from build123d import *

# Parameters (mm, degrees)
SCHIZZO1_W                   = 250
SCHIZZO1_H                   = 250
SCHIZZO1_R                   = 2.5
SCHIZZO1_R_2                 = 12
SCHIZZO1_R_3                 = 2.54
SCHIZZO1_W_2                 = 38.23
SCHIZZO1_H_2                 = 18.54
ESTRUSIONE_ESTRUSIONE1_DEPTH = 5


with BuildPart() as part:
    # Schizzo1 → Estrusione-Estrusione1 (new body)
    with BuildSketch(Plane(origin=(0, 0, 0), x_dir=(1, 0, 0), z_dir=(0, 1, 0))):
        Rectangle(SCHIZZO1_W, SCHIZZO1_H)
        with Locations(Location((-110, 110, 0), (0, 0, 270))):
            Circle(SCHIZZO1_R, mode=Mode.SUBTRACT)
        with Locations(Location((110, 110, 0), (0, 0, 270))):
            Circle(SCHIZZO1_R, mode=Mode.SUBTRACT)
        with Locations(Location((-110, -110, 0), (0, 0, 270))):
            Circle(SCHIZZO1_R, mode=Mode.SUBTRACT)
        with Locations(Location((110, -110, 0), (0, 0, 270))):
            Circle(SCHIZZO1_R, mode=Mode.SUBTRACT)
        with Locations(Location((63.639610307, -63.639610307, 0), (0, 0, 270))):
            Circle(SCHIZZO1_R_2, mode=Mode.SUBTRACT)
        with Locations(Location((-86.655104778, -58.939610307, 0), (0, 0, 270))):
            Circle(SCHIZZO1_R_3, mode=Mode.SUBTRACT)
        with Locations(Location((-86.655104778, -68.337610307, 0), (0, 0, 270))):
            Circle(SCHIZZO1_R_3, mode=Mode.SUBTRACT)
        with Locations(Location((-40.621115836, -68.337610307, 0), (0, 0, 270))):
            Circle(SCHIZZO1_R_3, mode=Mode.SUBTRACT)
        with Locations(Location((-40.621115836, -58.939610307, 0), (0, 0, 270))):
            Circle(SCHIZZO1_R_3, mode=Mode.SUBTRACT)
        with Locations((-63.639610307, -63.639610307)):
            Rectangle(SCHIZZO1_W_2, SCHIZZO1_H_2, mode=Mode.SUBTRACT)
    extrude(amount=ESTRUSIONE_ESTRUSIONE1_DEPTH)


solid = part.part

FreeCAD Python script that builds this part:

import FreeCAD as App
import Part
import Sketcher
from FreeCAD import Vector


def add_polygon(sketch, points):
    """Adds a closed chain of lines whose ends are joined by coincident constraints."""
    first, n = sketch.GeometryCount, len(points)
    for a, b in zip(points, points[1:] + points[:1]):
        sketch.addGeometry(Part.LineSegment(App.Vector(*a, 0), App.Vector(*b, 0)), False)
    for i in range(n):
        sketch.addConstraint(Sketcher.Constraint("Coincident", first + i, 2, first + (i + 1) % n, 1))

doc = App.newDocument("Part")
body = doc.addObject("PartDesign::Body", "Body")

# Sketch on XZ plane
sketch1 = body.newObject("Sketcher::SketchObject", "Sketch")
sketch1.AttachmentSupport = (doc.getObject("XZ_Plane"), [""])
sketch1.MapMode = "FlatFace"
add_polygon(sketch1, [(-125, -125), (-125, 125), (125, 125), (125, -125)])  # lines 0-3
sketch1.addGeometry(Part.Circle(Vector(-110, 110, 0), Vector(0, 0, 1), 2.5), False)  # 4
sketch1.addGeometry(Part.Circle(Vector(-86.7, 68.3, 0), Vector(0, 0, 1), 2.5), False)  # 5
sketch1.addGeometry(Part.Circle(Vector(-86.7, 58.9, 0), Vector(0, 0, 1), 2.5), False)  # 6
add_polygon(sketch1, [(-44.5, 72.9), (-82.8, 72.9), (-82.8, 54.4), (-44.5, 54.4)])  # lines 7-10
sketch1.addGeometry(Part.Circle(Vector(-40.6, 68.3, 0), Vector(0, 0, 1), 2.5), False)  # 11
sketch1.addGeometry(Part.Circle(Vector(-40.6, 58.9, 0), Vector(0, 0, 1), 2.5), False)  # 12
sketch1.addGeometry(Part.Circle(Vector(110, 110, 0), Vector(0, 0, 1), 2.5), False)  # 13
sketch1.addGeometry(Part.Circle(Vector(63.6, 63.6, 0), Vector(0, 0, 1), 12), False)  # 14
sketch1.addGeometry(Part.Circle(Vector(-110, -110, 0), Vector(0, 0, 1), 2.5), False)  # 15
sketch1.addGeometry(Part.Circle(Vector(110, -110, 0), Vector(0, 0, 1), 2.5), False)  # 16
sketch1.addConstraint([
    Sketcher.Constraint("Vertical", 0),
    Sketcher.Constraint("Horizontal", 1),
    Sketcher.Constraint("Vertical", 2),
    Sketcher.Constraint("Horizontal", 3),
    Sketcher.Constraint("Horizontal", 7),
    Sketcher.Constraint("Vertical", 8),
    Sketcher.Constraint("Horizontal", 9),
    Sketcher.Constraint("Vertical", 10),
    Sketcher.Constraint("Equal", 5, 6),
    Sketcher.Constraint("Equal", 6, 11),
    Sketcher.Constraint("Equal", 11, 12),
    Sketcher.Constraint("Equal", 4, 13),
    Sketcher.Constraint("Equal", 13, 15),
    Sketcher.Constraint("Equal", 15, 16),
    Sketcher.Constraint("Symmetric", 13, 3, 15, 3, -1, 1),
    Sketcher.Constraint("Symmetric", 4, 3, 16, 3, -1, 1),
    Sketcher.Constraint("Symmetric", 0, 2, 2, 2, -1, 1),
    Sketcher.Constraint("Symmetric", 4, 3, 13, 3, -2),
    Sketcher.Constraint("Horizontal", 5, 3, 11, 3),
    Sketcher.Constraint("Horizontal", 6, 3, 12, 3),
    Sketcher.Constraint("Vertical", 5, 3, 6, 3),
    Sketcher.Constraint("Vertical", 11, 3, 12, 3),
    Sketcher.Constraint("Equal", 3, 0),
    Sketcher.Constraint("Diameter", 4, 5.0),
    Sketcher.Constraint("Diameter", 14, 24.0),
    Sketcher.Constraint("Diameter", 5, 5.08),
    Sketcher.Constraint("DistanceX", 1, 1, 1, 2, 250.0),
    Sketcher.Constraint("DistanceX", 4, 3, -1, 1, 110.0),
    Sketcher.Constraint("DistanceY", -1, 1, 4, 3, 110.0),
    Sketcher.Constraint("DistanceX", 7, 2, 7, 1, 38.23),
    Sketcher.Constraint("DistanceY", 8, 2, 8, 1, 18.54),
    Sketcher.Constraint("DistanceY", 12, 3, 14, 3, 4.7),
    Sketcher.Constraint("DistanceY", 6, 3, 7, 2, 13.97),
    Sketcher.Constraint("DistanceY", 6, 3, 5, 3, 9.398),
    Sketcher.Constraint("DistanceY", -1, 1, 5, 3, 68.33761),
    Sketcher.Constraint("DistanceX", -1, 1, 14, 3, 63.63961),
    Sketcher.Constraint("DistanceX", 7, 2, -1, 1, 82.75461),
    Sketcher.Constraint("DistanceX", 5, 3, 11, 3, 46.033989),
    Sketcher.Constraint("DistanceX", 5, 3, -1, 1, 86.655105),
])
pad1 = body.newObject("PartDesign::Pad", "Pad")
pad1.Profile = sketch1
pad1.Length = 5
pad1.Reversed = True

doc.recompute()
